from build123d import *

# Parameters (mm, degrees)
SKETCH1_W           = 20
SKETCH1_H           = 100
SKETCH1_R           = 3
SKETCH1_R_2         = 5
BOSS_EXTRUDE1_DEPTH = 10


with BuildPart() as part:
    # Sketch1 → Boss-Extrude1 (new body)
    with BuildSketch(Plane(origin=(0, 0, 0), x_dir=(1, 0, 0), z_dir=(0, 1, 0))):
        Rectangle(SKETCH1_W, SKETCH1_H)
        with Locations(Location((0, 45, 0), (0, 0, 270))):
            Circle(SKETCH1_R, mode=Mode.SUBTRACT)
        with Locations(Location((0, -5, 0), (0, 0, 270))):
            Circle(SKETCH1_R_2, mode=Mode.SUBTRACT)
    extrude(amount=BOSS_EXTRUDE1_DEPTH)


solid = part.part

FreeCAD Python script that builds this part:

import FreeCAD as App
import Part
import Sketcher
from FreeCAD import Vector

doc = App.newDocument("Part")
params = doc.addObject("Spreadsheet::Sheet", "Params")
for row, (alias, value) in enumerate([
    ("sketch1_diameter", "10 mm"),
    ("sketch1_diameter2", "6 mm"),
    ("sketch1_width", "20 mm"),
    ("sketch1_height", "100 mm"),
    ("pad1_length", "10 mm"),
], start=1):
    params.set(f"A{row}", alias)
    params.set(f"B{row}", "=" + value)
    params.setAlias(f"B{row}", alias)

body = doc.addObject("PartDesign::Body", "Body")

sketch1 = body.newObject("Sketcher::SketchObject", "Sketch")
sketch1.AttachmentSupport = (doc.getObject("XZ_Plane"), [""])
sketch1.MapMode = "FlatFace"
sketch1.addGeometry([
    Part.LineSegment(Vector(-10, -50, 0), Vector(-10, 50, 0)),
    Part.LineSegment(Vector(-10, 50, 0), Vector(10, 50, 0)),
    Part.LineSegment(Vector(10, 50, 0), Vector(10, -50, 0)),
    Part.LineSegment(Vector(10, -50, 0), Vector(-10, -50, 0)),
    Part.Circle(Vector(0, 5, 0), Vector(0, 0, 1), 5),
    Part.Circle(Vector(0, -45, 0), Vector(0, 0, 1), 3),
], False)
sketch1.addConstraint([
    Sketcher.Constraint("Coincident", 0, 2, 1, 1),
    Sketcher.Constraint("Coincident", 1, 2, 2, 1),
    Sketcher.Constraint("Coincident", 2, 2, 3, 1),
    Sketcher.Constraint("Coincident", 3, 2, 0, 1),
    Sketcher.Constraint("Vertical", 0),
    Sketcher.Constraint("Horizontal", 1),
    Sketcher.Constraint("Vertical", 2),
    Sketcher.Constraint("Horizontal", 3),
    Sketcher.Constraint("Symmetric", 0, 2, 2, 2, -1, 1),
    Sketcher.Constraint("PointOnObject", 4, 3, -2),
    Sketcher.Constraint("PointOnObject", 5, 3, -2),
    Sketcher.Constraint("Diameter", 4, 10.0),
    Sketcher.Constraint("Diameter", 5, 6.0),
    Sketcher.Constraint("DistanceX", 1, 1, 1, 2, 20.0),
    Sketcher.Constraint("DistanceY", 0, 1, 0, 2, 100.0),
    Sketcher.Constraint("DistanceY", -1, 1, 4, 3, 5.0),
    Sketcher.Constraint("DistanceY", 5, 3, -1, 1, 45.0),
])
sketch1.setExpression("Constraints[11]", "Params.sketch1_diameter")
sketch1.setExpression("Constraints[12]", "Params.sketch1_diameter2")
sketch1.setExpression("Constraints[13]", "Params.sketch1_width")
sketch1.setExpression("Constraints[14]", "Params.sketch1_height")
pad1 = body.newObject("PartDesign::Pad", "Pad")
pad1.Profile = sketch1
pad1.setExpression("Length", "Params.pad1_length")
pad1.Reversed = True

doc.recompute()
